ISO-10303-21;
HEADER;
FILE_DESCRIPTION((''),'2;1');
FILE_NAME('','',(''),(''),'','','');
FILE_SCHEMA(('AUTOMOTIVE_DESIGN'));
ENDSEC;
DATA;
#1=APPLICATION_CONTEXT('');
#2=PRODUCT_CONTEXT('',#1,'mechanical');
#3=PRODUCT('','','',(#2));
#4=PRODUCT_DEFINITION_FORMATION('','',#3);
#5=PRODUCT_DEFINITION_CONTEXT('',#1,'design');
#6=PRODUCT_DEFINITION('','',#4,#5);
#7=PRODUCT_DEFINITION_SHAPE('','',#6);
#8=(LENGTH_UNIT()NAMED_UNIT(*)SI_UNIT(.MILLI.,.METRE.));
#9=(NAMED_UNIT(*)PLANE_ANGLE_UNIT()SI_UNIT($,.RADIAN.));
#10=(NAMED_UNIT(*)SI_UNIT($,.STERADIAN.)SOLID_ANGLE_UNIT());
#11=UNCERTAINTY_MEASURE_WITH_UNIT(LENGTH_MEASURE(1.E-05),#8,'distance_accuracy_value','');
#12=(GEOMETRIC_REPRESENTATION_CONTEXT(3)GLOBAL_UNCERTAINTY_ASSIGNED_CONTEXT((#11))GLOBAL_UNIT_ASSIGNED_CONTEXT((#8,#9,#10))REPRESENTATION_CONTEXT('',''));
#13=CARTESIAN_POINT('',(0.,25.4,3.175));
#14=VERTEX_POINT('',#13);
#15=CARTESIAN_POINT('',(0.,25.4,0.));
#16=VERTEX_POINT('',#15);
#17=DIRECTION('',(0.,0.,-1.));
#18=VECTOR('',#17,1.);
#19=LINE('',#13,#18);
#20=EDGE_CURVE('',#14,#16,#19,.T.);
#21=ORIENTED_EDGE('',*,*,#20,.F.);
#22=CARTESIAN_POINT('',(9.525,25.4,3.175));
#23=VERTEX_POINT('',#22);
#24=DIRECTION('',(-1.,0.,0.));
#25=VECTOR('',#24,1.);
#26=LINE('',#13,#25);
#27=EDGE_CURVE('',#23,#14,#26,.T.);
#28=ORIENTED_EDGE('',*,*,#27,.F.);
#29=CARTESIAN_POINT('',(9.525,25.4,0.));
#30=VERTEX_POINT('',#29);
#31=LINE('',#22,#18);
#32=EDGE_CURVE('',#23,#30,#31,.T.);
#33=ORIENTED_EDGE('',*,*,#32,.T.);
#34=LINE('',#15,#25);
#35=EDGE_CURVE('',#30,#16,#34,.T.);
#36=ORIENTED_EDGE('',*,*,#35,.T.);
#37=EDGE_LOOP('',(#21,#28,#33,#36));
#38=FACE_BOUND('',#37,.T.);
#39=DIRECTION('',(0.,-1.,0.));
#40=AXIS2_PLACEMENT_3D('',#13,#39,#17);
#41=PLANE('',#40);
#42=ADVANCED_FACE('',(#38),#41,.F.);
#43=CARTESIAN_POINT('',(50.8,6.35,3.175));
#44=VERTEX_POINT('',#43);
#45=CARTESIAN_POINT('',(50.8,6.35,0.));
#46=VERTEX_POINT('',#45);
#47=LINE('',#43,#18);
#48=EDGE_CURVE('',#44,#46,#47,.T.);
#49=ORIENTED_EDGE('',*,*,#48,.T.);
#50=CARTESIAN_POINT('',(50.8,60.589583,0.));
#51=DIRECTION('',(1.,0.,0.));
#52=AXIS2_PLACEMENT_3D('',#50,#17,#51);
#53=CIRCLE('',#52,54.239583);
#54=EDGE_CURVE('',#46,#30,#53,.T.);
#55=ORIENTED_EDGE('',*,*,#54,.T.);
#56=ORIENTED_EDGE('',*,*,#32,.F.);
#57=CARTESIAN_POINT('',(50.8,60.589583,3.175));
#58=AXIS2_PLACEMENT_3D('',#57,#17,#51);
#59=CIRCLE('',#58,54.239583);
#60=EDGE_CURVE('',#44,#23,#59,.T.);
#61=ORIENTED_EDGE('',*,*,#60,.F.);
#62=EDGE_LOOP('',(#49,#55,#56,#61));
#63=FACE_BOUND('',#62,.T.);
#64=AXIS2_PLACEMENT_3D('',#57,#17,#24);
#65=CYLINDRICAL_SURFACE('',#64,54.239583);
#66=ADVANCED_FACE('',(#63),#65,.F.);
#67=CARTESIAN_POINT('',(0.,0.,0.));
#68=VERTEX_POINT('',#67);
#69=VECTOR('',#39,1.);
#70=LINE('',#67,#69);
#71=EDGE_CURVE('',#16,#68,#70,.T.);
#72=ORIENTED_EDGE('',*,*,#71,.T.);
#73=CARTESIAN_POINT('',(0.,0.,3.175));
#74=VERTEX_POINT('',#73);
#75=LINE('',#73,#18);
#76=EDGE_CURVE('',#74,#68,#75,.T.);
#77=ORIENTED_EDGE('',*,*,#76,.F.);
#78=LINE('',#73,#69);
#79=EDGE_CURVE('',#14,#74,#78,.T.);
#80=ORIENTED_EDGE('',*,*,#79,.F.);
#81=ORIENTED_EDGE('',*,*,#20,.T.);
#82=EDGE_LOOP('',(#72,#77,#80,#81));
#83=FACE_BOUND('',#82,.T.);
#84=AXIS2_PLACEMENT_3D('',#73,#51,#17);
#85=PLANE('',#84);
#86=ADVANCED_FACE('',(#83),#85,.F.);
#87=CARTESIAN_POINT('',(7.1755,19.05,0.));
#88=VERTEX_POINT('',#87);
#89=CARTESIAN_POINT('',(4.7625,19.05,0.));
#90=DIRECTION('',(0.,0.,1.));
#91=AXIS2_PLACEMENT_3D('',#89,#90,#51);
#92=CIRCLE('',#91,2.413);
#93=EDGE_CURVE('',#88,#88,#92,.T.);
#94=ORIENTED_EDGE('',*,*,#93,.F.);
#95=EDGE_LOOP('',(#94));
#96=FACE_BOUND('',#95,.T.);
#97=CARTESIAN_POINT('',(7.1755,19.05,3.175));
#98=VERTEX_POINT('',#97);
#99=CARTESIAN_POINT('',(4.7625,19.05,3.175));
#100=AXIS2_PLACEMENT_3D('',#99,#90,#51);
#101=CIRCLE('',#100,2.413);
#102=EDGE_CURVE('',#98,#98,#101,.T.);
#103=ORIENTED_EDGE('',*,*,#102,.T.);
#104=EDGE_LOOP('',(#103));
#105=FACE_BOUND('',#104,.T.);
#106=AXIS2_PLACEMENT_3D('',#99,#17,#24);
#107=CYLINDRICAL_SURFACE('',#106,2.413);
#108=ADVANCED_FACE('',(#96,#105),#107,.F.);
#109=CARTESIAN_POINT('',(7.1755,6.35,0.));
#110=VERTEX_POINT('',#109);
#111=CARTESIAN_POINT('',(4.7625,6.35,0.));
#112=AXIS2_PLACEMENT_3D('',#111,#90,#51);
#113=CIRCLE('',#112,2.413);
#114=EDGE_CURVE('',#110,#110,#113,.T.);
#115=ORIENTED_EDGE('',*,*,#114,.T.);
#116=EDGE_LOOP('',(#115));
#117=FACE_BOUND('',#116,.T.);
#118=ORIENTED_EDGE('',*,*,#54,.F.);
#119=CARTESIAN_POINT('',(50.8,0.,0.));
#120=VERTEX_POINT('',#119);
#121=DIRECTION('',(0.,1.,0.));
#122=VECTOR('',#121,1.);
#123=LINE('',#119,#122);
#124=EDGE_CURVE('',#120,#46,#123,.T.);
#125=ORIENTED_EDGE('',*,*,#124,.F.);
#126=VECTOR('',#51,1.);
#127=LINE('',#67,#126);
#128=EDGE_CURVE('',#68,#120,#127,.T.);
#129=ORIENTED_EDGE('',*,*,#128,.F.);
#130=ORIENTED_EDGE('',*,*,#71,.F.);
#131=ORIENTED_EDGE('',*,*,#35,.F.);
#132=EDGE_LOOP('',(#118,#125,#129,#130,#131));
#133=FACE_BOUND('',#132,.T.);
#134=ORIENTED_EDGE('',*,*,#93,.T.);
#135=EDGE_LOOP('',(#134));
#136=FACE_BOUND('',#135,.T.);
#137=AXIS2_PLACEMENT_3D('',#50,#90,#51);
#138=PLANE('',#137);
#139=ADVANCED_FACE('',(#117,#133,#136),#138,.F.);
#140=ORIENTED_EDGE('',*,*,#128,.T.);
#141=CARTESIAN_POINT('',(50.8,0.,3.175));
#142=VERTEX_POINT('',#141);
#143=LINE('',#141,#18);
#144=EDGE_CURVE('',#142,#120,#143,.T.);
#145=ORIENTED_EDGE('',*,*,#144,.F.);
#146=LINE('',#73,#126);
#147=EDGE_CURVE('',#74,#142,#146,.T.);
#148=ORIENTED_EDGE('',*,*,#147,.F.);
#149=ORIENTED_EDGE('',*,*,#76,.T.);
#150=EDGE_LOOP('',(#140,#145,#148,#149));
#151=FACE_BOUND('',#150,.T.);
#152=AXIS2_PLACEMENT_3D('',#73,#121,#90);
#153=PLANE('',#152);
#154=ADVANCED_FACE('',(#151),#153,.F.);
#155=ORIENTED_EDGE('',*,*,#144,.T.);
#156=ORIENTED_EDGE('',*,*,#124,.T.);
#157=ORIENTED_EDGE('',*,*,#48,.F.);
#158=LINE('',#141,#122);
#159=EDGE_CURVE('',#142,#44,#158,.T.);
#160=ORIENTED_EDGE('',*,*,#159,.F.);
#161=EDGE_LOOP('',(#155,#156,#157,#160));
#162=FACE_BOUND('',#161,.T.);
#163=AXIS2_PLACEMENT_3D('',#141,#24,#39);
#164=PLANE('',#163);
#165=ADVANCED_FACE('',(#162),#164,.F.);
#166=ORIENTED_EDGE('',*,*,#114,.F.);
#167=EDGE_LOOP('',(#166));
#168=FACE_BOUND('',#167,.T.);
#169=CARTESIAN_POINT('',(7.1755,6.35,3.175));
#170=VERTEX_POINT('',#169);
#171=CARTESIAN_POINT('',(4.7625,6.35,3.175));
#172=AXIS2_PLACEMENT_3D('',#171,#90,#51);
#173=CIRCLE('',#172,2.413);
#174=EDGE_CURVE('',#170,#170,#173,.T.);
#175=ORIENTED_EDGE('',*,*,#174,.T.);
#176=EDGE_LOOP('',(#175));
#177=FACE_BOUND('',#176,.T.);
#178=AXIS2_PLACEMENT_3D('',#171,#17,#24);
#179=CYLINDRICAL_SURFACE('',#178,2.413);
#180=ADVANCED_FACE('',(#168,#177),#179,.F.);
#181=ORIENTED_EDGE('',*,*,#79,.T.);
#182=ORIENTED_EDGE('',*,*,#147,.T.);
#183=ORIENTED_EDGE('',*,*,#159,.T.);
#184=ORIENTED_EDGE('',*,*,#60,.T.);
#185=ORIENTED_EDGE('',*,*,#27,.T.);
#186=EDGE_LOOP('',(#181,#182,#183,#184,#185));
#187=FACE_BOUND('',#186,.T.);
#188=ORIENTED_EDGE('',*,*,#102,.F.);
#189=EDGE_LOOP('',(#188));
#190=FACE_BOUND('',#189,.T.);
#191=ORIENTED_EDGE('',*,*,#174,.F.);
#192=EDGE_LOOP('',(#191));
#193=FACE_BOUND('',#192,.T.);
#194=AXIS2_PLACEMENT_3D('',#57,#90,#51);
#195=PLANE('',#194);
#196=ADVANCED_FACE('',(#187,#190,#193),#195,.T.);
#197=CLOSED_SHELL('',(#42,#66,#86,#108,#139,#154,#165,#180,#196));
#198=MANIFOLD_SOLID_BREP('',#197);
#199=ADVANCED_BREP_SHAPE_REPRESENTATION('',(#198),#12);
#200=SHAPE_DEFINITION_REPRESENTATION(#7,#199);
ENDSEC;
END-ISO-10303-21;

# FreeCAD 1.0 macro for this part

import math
import FreeCAD as App
import Part
import Sketcher

V = App.Vector
Q = App.Units.Quantity

doc = App.newDocument("Part")
body = doc.addObject("PartDesign::Body", "Body")

# Sketch on XY plane
sketch1 = body.newObject("Sketcher::SketchObject", "Sketch")
sketch1.AttachmentSupport = (doc.getObject("XY_Plane"), [""])
sketch1.MapMode = "FlatFace"
sketch1.addGeometry([
    Part.LineSegment(V(0, 25.4, 0), V(0, 0, 0)),  # 0
    Part.LineSegment(V(0, 0, 0), V(50.8, 0, 0)),  # 1
    Part.LineSegment(V(50.8, 0, 0), V(50.8, 6.35, 0)),  # 2
    Part.ArcOfCircle(Part.Circle(V(50.8, 60.589583, 0), V(0, 0, 1), 54.239583), math.radians(-139.550281), math.radians(-90)),  # 3
    Part.LineSegment(V(9.525, 25.4, 0), V(0, 25.4, 0)),  # 4
    Part.Circle(V(4.7625, 6.35, 0), V(0, 0, 1), 2.413),  # 5
    Part.Circle(V(4.7625, 19.05, 0), V(0, 0, 1), 2.413),  # 6
], False)
sketch1.addConstraint([
    Sketcher.Constraint("Coincident", 0, 2, 1, 1),
    Sketcher.Constraint("Coincident", 1, 2, 2, 1),
    Sketcher.Constraint("Coincident", 2, 2, 3, 2),
    Sketcher.Constraint("Coincident", 3, 1, 4, 1),
    Sketcher.Constraint("Coincident", 4, 2, 0, 1),
    Sketcher.Constraint("Vertical", 0),
    Sketcher.Constraint("Horizontal", 1),
    Sketcher.Constraint("Vertical", 2),
    Sketcher.Constraint("Horizontal", 4),
    Sketcher.Constraint("Coincident", 0, 2, -1, 1),
    Sketcher.Constraint("Equal", 5, 6),
    Sketcher.Constraint("Horizontal", 5, 3, 2, 2),
    Sketcher.Constraint("Vertical", 5, 3, 6, 3),
    Sketcher.Constraint("Vertical", 3, 3, 1, 2),
    Sketcher.Constraint("Diameter", 5, Q("0.19 in")),
    Sketcher.Constraint("DistanceX", 1, 1, 1, 2, Q("2 in")),
    Sketcher.Constraint("DistanceY", 0, 2, 0, 1, Q("1 in")),
    Sketcher.Constraint("DistanceY", 2, 1, 2, 2, Q("0.25 in")),
    Sketcher.Constraint("DistanceY", 5, 3, 6, 3, Q("0.5 in")),
    Sketcher.Constraint("DistanceX", 4, 2, 4, 1, Q("0.375 in")),
    Sketcher.Constraint("DistanceX", -1, 1, 5, 3, Q("0.1875 in")),
])
pad1 = body.newObject("PartDesign::Pad", "Pad")
pad1.Profile = sketch1
pad1.Length = Q("0.125 in")

doc.recompute()
